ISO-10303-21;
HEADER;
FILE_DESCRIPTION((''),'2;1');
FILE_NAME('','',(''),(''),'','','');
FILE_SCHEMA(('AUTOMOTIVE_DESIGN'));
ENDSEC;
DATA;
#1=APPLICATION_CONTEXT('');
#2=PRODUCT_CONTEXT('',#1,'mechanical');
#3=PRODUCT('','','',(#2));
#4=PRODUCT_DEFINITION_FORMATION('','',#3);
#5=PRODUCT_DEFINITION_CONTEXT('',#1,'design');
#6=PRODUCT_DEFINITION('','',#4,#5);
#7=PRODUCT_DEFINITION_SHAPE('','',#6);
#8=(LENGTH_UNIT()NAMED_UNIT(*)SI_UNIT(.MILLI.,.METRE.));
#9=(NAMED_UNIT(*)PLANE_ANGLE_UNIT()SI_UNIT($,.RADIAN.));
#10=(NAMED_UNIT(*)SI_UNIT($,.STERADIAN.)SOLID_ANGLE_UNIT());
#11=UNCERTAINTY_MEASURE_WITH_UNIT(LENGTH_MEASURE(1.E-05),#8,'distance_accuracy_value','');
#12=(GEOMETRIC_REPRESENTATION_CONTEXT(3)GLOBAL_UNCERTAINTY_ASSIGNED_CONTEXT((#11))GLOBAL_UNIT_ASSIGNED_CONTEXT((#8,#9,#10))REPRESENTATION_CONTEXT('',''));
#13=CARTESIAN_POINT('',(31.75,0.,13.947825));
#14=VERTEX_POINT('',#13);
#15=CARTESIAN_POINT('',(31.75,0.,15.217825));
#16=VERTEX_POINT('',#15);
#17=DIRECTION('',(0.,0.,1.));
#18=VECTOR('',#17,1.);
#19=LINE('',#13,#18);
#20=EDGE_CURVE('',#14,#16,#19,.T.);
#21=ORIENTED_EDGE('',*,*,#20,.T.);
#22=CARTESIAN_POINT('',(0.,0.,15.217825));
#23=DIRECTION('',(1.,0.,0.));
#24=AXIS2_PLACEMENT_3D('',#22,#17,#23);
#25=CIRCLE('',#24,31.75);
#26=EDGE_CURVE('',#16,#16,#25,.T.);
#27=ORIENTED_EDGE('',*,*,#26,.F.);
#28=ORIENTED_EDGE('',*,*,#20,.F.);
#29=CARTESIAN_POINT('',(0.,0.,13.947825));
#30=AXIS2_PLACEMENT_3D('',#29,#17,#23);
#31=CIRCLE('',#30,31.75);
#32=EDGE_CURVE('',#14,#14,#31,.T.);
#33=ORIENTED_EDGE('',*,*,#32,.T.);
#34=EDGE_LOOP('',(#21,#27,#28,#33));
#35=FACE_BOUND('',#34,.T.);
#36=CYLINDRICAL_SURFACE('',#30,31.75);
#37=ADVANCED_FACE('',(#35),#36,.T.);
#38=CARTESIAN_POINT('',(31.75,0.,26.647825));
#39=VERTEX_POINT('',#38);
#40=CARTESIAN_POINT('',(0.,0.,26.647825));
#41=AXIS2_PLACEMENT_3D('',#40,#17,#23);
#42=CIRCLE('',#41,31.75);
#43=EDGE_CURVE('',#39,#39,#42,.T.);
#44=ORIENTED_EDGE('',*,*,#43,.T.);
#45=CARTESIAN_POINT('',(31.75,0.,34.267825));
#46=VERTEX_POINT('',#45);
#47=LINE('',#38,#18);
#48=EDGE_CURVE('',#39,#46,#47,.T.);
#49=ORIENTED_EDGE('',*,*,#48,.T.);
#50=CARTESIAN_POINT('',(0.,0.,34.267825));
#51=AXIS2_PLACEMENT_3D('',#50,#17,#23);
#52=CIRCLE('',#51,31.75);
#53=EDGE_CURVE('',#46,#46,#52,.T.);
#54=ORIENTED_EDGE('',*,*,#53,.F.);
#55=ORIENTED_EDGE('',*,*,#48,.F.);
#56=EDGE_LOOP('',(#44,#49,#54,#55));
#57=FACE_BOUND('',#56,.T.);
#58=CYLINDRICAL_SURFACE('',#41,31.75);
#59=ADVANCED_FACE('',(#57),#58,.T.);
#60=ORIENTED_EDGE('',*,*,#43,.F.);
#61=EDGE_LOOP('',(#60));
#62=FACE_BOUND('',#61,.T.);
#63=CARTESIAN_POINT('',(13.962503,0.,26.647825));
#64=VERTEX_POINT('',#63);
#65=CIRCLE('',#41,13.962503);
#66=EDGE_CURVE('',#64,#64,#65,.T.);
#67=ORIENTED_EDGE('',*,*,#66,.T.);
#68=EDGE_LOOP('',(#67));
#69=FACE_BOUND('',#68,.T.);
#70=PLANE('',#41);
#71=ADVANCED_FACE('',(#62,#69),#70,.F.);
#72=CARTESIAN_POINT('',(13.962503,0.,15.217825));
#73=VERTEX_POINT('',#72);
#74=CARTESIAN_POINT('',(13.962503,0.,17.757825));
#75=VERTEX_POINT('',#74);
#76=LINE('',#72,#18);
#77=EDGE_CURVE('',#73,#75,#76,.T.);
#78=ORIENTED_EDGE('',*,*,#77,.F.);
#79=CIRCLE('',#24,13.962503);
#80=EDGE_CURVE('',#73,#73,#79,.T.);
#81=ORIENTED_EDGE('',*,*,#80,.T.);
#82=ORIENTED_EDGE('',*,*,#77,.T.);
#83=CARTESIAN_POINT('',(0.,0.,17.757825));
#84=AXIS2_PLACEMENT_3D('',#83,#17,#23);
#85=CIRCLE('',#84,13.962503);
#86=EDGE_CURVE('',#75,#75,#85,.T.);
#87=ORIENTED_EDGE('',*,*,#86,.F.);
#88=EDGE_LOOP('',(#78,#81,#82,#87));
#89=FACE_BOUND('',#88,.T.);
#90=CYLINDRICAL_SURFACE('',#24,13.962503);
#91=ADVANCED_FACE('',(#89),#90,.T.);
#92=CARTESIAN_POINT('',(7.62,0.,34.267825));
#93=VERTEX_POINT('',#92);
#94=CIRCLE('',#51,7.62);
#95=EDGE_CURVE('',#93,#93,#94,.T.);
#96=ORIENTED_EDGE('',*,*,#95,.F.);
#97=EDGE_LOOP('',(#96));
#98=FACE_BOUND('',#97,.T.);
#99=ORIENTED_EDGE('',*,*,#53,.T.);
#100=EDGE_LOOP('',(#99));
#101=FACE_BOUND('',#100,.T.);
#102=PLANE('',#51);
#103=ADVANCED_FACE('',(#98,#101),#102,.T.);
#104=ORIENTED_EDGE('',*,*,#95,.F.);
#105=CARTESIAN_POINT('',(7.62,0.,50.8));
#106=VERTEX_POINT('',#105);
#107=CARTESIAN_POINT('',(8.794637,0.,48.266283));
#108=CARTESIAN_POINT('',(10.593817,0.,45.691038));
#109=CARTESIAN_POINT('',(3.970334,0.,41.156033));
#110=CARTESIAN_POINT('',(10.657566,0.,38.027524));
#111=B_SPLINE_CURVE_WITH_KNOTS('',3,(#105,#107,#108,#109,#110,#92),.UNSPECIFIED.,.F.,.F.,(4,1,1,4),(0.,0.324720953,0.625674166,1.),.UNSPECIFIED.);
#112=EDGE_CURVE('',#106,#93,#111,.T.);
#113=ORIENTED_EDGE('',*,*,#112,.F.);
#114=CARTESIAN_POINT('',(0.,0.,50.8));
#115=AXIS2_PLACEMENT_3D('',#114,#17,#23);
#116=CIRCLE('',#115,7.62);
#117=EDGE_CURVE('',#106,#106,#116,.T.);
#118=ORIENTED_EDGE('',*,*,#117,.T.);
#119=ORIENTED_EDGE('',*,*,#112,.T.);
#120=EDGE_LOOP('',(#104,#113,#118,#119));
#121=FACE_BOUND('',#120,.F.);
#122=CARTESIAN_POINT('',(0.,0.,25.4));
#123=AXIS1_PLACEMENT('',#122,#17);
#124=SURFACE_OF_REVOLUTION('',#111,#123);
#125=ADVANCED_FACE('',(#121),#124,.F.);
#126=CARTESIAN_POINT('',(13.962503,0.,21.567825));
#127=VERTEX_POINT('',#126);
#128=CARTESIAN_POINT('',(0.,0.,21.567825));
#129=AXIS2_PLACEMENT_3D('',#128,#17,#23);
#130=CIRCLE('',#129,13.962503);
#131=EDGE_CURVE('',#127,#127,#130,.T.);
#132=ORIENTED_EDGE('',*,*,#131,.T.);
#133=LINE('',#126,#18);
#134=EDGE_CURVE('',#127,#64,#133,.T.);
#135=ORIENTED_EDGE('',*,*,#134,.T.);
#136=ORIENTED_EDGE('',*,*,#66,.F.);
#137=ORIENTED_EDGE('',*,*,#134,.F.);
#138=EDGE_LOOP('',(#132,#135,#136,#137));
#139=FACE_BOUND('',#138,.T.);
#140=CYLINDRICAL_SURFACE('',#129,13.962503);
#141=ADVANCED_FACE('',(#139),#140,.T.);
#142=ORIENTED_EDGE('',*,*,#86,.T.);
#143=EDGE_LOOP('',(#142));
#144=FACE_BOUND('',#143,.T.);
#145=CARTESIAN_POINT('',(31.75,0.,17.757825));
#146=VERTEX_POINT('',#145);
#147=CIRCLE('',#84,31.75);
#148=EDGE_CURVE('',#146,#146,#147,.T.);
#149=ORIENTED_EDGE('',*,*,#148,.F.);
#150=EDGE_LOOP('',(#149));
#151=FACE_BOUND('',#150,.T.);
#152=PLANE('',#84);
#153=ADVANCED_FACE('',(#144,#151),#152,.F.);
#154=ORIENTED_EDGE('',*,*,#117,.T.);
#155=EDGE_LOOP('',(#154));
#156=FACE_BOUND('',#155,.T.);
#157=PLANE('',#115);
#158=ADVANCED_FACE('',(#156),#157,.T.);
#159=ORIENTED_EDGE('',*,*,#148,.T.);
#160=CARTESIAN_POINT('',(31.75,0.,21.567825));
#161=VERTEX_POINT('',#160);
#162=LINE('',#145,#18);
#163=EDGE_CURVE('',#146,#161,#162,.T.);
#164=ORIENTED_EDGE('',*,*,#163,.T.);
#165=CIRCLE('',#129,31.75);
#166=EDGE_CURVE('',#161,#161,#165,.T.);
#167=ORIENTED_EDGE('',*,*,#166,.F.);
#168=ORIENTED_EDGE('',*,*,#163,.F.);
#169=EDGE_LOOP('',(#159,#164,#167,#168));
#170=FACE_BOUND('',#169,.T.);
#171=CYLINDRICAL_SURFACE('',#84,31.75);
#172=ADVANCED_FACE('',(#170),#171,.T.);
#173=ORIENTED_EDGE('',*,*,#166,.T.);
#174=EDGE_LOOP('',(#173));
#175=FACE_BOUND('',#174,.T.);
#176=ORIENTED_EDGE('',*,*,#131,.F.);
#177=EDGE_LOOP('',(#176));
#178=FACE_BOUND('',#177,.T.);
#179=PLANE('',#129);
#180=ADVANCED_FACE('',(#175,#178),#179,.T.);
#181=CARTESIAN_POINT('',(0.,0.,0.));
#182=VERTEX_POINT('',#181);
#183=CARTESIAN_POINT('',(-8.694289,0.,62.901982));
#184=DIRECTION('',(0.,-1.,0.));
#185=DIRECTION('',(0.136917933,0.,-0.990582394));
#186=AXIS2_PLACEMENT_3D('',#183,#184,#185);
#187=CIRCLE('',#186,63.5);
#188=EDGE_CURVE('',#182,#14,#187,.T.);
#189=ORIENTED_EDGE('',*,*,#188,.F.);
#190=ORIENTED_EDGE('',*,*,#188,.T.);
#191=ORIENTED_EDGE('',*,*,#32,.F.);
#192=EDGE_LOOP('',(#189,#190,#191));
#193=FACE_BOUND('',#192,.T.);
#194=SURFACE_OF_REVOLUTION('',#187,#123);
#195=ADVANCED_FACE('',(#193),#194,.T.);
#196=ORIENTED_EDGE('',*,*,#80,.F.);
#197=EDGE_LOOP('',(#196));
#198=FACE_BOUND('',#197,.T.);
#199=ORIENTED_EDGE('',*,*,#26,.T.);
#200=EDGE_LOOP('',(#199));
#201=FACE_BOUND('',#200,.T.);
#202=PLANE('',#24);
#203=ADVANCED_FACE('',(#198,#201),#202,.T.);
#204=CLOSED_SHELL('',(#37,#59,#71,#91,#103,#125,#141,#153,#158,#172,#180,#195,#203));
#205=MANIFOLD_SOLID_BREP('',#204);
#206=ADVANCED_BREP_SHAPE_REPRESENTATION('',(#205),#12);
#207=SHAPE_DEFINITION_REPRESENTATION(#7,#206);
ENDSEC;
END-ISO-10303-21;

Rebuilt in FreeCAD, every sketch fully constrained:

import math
import FreeCAD as App
import Part
import Sketcher
from FreeCAD import Vector
Q = App.Units.Quantity

doc = App.newDocument("Part")
params = doc.addObject("Spreadsheet::Sheet", "Params")
for row, (alias, value) in enumerate([
    ("sketch1_radius", "2.5 in"),
    ("sketch1_height", "0.2 in"),
    ("sketch1_height2", "0.1 in"),
    ("sketch1_width", "0.95 in"),
    ("sketch1_height3", "0.15 in"),
    ("revolution_angle", "360 deg"),
], start=1):
    params.set(f"A{row}", alias)
    params.set(f"B{row}", "=" + value)
    params.setAlias(f"B{row}", alias)

body = doc.addObject("PartDesign::Body", "Body")

# Sketch on XZ plane
sketch1 = body.newObject("Sketcher::SketchObject", "Sketch")
sketch1.AttachmentSupport = (doc.getObject("XZ_Plane"), [""])
sketch1.MapMode = "FlatFace"
sketch1.addGeometry(Part.LineSegment(Vector(31.75, 17.757825, 0), Vector(31.75, 21.567825, 0)), False)
sketch1.addGeometry(Part.LineSegment(Vector(31.75, 21.567825, 0), Vector(13.962503, 21.567825, 0)), False)
sketch1.addGeometry(Part.LineSegment(Vector(13.962503, 21.567825, 0), Vector(13.962503, 26.647825, 0)), False)
sketch1.addGeometry(Part.LineSegment(Vector(13.962503, 26.647825, 0), Vector(31.75, 26.647825, 0)), False)
sketch1.addGeometry(Part.LineSegment(Vector(31.75, 26.647825, 0), Vector(31.75, 34.267825, 0)), False)
sketch1.addGeometry(Part.LineSegment(Vector(31.75, 34.267825, 0), Vector(7.62, 34.267825, 0)), False)
sketch1.addGeometry(Part.BSplineCurve([Vector(7.62, 50.8, 0), Vector(8.794637, 48.266283, 0), Vector(10.593817, 45.691038, 0), Vector(3.970334, 41.156033, 0), Vector(10.657566, 38.027524, 0), Vector(7.62, 34.267825, 0)], [4, 1, 1, 4], [0, 0.324720953, 0.625674166, 1], False, 3, [1, 1, 1, 1, 1, 1], False), False)
sketch1.addGeometry(Part.LineSegment(Vector(7.62, 50.8, 0), Vector(0, 50.8, 0)), False)
sketch1.addGeometry(Part.LineSegment(Vector(0, 50.8, 0), Vector(0, 0, 0)), False)
sketch1.addGeometry(Part.ArcOfCircle(Part.Circle(Vector(-8.694289, 62.901982, 0), Vector(0, 0, 1), 63.5), math.radians(-82.130461), math.radians(-50.43762)), False)
sketch1.addGeometry(Part.LineSegment(Vector(31.75, 13.947825, 0), Vector(31.75, 15.217825, 0)), False)
sketch1.addGeometry(Part.LineSegment(Vector(31.75, 15.217825, 0), Vector(13.962503, 15.217825, 0)), False)
sketch1.addGeometry(Part.LineSegment(Vector(13.962503, 15.217825, 0), Vector(13.962503, 17.757825, 0)), False)
sketch1.addGeometry(Part.LineSegment(Vector(13.962503, 17.757825, 0), Vector(31.75, 17.757825, 0)), False)
sketch1.addConstraint(Sketcher.Constraint("Block", 6))
sketch1.addConstraint(Sketcher.Constraint("Coincident", 0, 2, 1, 1))
sketch1.addConstraint(Sketcher.Constraint("Coincident", 1, 2, 2, 1))
sketch1.addConstraint(Sketcher.Constraint("Coincident", 2, 2, 3, 1))
sketch1.addConstraint(Sketcher.Constraint("Coincident", 3, 2, 4, 1))
sketch1.addConstraint(Sketcher.Constraint("Coincident", 4, 2, 5, 1))
sketch1.addConstraint(Sketcher.Constraint("Coincident", 5, 2, 6, 2))
sketch1.addConstraint(Sketcher.Constraint("Coincident", 6, 1, 7, 1))
sketch1.addConstraint(Sketcher.Constraint("Coincident", 7, 2, 8, 1))
sketch1.addConstraint(Sketcher.Constraint("Coincident", 8, 2, 9, 1))
sketch1.addConstraint(Sketcher.Constraint("Coincident", 9, 2, 10, 1))
sketch1.addConstraint(Sketcher.Constraint("Coincident", 10, 2, 11, 1))
sketch1.addConstraint(Sketcher.Constraint("Coincident", 11, 2, 12, 1))
sketch1.addConstraint(Sketcher.Constraint("Coincident", 12, 2, 13, 1))
sketch1.addConstraint(Sketcher.Constraint("Coincident", 13, 2, 0, 1))
sketch1.addConstraint(Sketcher.Constraint("Vertical", 0))
sketch1.addConstraint(Sketcher.Constraint("Horizontal", 1))
sketch1.addConstraint(Sketcher.Constraint("Vertical", 2))
sketch1.addConstraint(Sketcher.Constraint("Horizontal", 3))
sketch1.addConstraint(Sketcher.Constraint("Vertical", 4))
sketch1.addConstraint(Sketcher.Constraint("Horizontal", 5))
sketch1.addConstraint(Sketcher.Constraint("Horizontal", 7))
sketch1.addConstraint(Sketcher.Constraint("Vertical", 8))
sketch1.addConstraint(Sketcher.Constraint("Vertical", 10))
sketch1.addConstraint(Sketcher.Constraint("Horizontal", 11))
sketch1.addConstraint(Sketcher.Constraint("Vertical", 12))
sketch1.addConstraint(Sketcher.Constraint("Horizontal", 13))
sketch1.addConstraint(Sketcher.Constraint("Coincident", 8, 2, -1, 1))
sketch1.addConstraint(Sketcher.Constraint("Vertical", 0, 2, 3, 2))
sketch1.addConstraint(Sketcher.Constraint("Vertical", 4, 2, 9, 2))
sketch1.addConstraint(Sketcher.Constraint("Vertical", 2, 2, 11, 2))
sketch1.addConstraint(Sketcher.Constraint("Equal", 7, 4))
sketch1.addConstraint(Sketcher.Constraint("Radius", 9, Q("2.5 in")))
sketch1.addConstraint(Sketcher.Constraint("DistanceY", 2, 1, 2, 2, Q("0.2 in")))
sketch1.addConstraint(Sketcher.Constraint("DistanceY", 12, 1, 12, 2, Q("0.1 in")))
sketch1.addConstraint(Sketcher.Constraint("DistanceX", 5, 2, 5, 1, Q("0.95 in")))
sketch1.addConstraint(Sketcher.Constraint("DistanceY", 0, 1, 0, 2, Q("0.15 in")))
sketch1.addConstraint(Sketcher.Constraint("DistanceY", 10, 1, 10, 2, Q("0.05 in")))
sketch1.addConstraint(Sketcher.Constraint("DistanceX", 1, 2, 1, 1, Q("17.787497 mm")))
sketch1.setExpression("Constraints[32]", "Params.sketch1_radius")
sketch1.setExpression("Constraints[33]", "Params.sketch1_height")
sketch1.setExpression("Constraints[34]", "Params.sketch1_height2")
sketch1.setExpression("Constraints[35]", "Params.sketch1_width")
sketch1.setExpression("Constraints[36]", "Params.sketch1_height3")
revolution = body.newObject("PartDesign::Revolution", "Revolution")
revolution.Profile = sketch1
revolution.ReferenceAxis = (sketch1, ["V_Axis"])
revolution.setExpression("Angle", "Params.revolution_angle")

doc.recompute()
